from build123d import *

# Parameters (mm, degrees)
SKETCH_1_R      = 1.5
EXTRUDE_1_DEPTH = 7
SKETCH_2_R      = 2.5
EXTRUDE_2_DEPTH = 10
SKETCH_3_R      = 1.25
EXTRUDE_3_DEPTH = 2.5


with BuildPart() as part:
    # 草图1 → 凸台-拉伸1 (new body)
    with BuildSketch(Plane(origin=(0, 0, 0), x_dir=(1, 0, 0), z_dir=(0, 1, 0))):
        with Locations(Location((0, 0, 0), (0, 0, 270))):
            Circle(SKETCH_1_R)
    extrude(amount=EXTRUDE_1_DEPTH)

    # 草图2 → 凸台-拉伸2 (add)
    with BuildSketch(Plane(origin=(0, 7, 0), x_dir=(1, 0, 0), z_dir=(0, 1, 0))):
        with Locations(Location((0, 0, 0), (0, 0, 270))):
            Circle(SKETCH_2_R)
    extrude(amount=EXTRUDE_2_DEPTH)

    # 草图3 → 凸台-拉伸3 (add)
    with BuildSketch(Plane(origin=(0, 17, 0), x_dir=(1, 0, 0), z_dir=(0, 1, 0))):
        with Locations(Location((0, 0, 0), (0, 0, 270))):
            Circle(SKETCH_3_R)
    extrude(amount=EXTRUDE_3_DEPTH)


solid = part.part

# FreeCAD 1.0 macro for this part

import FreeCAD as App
import Part
import Sketcher

doc = App.newDocument("Part")
body = doc.addObject("PartDesign::Body", "Body")

sketch1 = body.newObject("Sketcher::SketchObject", "Sketch")
sketch1.AttachmentSupport = (doc.getObject("XZ_Plane"), [""])
sketch1.MapMode = "FlatFace"
sketch1.addGeometry(Part.Circle(App.Vector(0, 0, 0), App.Vector(0, 0, 1), 1.5), False)
sketch1.addConstraint(Sketcher.Constraint("Coincident", 0, 3, -1, 1))
sketch1.addConstraint(Sketcher.Constraint("Diameter", 0, 3.0))
pad1 = body.newObject("PartDesign::Pad", "Pad")
pad1.Profile = sketch1
pad1.Length = 7
pad1.Reversed = True

sketch2 = body.newObject("Sketcher::SketchObject", "Sketch001")
sketch2.AttachmentSupport = (doc.getObject("XZ_Plane"), [""])
sketch2.MapMode = "FlatFace"
sketch2.AttachmentOffset = App.Placement(App.Vector(0, 0, -7), App.Rotation())
sketch2.addGeometry(Part.Circle(App.Vector(0, 0, 0), App.Vector(0, 0, 1), 2.5), False)
sketch2.addConstraint(Sketcher.Constraint("Coincident", 0, 3, -1, 1))
sketch2.addConstraint(Sketcher.Constraint("Diameter", 0, 5.0))
pad2 = body.newObject("PartDesign::Pad", "Pad001")
pad2.Profile = sketch2
pad2.Length = 10
pad2.Reversed = True

sketch3 = body.newObject("Sketcher::SketchObject", "Sketch002")
sketch3.AttachmentSupport = (doc.getObject("XZ_Plane"), [""])
sketch3.MapMode = "FlatFace"
sketch3.AttachmentOffset = App.Placement(App.Vector(0, 0, -17), App.Rotation())
sketch3.addGeometry(Part.Circle(App.Vector(0, 0, 0), App.Vector(0, 0, 1), 1.25), False)
sketch3.addConstraint(Sketcher.Constraint("Coincident", 0, 3, -1, 1))
sketch3.addConstraint(Sketcher.Constraint("Diameter", 0, 2.5))
pad3 = body.newObject("PartDesign::Pad", "Pad002")
pad3.Profile = sketch3
pad3.Length = 2.5
pad3.Reversed = True

doc.recompute()
